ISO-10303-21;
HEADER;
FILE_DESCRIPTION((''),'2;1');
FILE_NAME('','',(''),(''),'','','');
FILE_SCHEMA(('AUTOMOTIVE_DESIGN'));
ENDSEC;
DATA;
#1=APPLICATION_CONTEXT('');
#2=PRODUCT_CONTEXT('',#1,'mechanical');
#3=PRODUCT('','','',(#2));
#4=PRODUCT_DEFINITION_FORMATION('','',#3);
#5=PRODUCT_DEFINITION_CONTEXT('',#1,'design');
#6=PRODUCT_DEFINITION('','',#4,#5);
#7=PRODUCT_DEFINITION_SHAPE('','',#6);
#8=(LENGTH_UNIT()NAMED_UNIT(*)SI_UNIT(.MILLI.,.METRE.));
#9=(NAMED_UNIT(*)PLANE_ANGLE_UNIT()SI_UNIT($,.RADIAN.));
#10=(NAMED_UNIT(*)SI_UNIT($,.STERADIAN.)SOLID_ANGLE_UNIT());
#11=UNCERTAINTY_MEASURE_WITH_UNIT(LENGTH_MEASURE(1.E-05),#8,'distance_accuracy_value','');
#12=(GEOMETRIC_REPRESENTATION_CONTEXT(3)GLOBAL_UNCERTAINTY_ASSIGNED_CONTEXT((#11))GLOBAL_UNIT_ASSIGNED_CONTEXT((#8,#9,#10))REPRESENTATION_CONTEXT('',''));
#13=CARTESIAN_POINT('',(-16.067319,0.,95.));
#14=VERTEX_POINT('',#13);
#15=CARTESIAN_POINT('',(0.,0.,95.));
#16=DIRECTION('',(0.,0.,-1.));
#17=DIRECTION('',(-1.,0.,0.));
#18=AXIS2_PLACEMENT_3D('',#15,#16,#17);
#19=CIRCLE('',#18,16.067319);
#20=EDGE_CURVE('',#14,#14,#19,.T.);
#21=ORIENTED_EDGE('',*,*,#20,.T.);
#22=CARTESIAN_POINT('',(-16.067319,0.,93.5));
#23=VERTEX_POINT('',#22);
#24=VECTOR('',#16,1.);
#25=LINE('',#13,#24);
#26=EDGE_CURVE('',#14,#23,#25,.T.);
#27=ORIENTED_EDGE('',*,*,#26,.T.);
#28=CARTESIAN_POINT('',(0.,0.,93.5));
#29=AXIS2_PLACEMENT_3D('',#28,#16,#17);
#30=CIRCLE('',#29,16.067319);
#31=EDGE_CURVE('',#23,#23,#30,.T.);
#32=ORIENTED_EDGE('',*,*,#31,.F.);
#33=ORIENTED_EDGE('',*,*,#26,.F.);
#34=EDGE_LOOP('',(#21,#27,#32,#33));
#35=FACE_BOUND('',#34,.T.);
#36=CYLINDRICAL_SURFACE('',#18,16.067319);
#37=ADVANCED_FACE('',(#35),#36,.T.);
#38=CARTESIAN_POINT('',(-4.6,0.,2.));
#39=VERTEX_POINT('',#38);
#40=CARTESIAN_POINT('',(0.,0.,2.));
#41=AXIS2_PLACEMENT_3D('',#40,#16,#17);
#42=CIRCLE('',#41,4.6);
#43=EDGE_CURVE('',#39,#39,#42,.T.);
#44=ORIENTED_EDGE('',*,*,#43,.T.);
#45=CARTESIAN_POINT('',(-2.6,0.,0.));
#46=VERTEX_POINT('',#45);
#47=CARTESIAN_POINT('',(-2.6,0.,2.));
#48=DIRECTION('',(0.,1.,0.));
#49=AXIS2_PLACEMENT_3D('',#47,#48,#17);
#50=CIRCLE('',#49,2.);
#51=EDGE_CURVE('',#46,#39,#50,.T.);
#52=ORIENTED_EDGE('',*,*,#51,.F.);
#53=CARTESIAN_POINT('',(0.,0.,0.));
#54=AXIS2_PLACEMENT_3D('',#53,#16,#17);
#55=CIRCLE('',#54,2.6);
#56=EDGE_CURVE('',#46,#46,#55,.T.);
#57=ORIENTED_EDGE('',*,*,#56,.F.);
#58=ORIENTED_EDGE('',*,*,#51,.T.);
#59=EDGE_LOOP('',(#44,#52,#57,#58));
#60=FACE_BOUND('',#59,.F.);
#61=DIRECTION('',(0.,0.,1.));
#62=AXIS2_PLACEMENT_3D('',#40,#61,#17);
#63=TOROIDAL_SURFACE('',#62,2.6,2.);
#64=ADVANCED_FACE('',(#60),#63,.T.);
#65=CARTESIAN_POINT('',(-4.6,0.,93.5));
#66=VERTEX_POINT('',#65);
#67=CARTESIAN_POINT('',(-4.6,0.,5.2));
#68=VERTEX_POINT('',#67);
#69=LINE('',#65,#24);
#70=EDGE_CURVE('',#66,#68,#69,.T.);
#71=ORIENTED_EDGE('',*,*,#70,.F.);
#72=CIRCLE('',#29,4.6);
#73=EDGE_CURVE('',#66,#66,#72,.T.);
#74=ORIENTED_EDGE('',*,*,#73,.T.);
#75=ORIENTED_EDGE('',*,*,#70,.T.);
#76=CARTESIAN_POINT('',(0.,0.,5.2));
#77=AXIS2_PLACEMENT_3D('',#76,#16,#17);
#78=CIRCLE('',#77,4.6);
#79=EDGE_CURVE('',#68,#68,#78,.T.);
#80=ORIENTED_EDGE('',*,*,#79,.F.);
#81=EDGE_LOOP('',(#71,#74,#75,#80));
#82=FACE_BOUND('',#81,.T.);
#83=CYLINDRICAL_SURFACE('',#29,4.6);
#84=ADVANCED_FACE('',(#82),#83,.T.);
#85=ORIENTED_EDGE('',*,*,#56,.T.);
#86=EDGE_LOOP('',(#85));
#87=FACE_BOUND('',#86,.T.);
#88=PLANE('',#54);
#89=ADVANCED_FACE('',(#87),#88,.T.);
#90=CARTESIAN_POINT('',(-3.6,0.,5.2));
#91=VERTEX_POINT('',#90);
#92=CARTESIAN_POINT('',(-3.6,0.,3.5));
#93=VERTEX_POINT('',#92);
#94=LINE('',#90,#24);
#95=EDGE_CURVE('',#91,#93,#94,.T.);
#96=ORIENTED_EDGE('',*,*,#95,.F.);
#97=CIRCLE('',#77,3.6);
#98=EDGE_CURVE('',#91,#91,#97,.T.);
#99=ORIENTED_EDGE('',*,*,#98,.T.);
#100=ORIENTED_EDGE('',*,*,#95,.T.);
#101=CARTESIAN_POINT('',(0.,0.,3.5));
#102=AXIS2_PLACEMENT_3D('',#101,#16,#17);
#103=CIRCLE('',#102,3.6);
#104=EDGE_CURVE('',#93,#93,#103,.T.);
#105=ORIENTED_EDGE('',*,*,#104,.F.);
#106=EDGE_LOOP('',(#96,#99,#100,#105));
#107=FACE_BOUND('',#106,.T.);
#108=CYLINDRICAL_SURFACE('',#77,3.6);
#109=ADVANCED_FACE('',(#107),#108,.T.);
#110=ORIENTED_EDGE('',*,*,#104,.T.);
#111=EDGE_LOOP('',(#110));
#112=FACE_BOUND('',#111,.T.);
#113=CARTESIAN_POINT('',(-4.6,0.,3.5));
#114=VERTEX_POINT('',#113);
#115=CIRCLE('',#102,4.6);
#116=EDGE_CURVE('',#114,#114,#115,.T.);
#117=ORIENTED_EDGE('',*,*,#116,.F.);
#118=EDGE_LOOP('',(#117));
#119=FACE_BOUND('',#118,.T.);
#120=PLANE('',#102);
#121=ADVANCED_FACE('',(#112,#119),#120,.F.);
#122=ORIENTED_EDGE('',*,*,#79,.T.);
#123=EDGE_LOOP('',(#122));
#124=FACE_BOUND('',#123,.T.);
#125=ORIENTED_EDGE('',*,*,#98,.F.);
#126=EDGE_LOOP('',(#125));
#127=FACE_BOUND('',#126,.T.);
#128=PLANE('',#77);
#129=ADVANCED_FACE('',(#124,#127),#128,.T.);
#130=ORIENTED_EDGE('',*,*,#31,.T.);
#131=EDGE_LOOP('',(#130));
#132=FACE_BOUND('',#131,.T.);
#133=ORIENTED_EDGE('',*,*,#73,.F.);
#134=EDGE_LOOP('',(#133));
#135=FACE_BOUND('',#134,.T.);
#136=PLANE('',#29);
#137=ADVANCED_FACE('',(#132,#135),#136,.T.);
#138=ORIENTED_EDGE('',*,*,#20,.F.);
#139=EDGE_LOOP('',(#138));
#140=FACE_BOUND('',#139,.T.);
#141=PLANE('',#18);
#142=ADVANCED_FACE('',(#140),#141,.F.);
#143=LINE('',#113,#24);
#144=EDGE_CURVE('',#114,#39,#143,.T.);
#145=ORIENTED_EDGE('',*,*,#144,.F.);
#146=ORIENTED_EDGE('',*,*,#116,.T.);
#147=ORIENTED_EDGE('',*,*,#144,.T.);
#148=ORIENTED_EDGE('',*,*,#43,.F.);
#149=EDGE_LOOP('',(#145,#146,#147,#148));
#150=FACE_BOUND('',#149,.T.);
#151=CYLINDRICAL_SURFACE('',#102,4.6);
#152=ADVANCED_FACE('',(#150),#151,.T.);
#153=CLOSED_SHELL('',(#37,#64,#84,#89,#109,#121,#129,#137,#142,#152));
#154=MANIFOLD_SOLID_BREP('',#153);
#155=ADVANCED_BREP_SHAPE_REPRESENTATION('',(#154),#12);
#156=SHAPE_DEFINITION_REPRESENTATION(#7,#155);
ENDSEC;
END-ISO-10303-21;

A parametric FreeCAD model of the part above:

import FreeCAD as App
import Part
import Sketcher


def edges_at(feature, points):
    """Names of the edges that pass closest to the given points."""
    edges = feature.Shape.Edges
    near = lambda p: min(range(len(edges)), key=lambda i: edges[i].distToShape(Part.Vertex(*p))[0])
    return sorted({f"Edge{near(p) + 1}" for p in points})

doc = App.newDocument("Part")
body = doc.addObject("PartDesign::Body", "Body")

sketch1 = body.newObject("Sketcher::SketchObject", "Sketch")
sketch1.AttachmentSupport = (doc.getObject("XZ_Plane"), [""])
sketch1.MapMode = "FlatFace"
sketch1.addGeometry([
    Part.LineSegment(App.Vector(-4.6, 0, 0), App.Vector(0, 0, 0)),
    Part.LineSegment(App.Vector(0, 0, 0), App.Vector(0, 95, 0)),
    Part.LineSegment(App.Vector(0, 95, 0), App.Vector(-16.1, 95, 0)),
    Part.LineSegment(App.Vector(-16.1, 95, 0), App.Vector(-16.1, 93.5, 0)),
    Part.LineSegment(App.Vector(-16.1, 93.5, 0), App.Vector(-4.6, 93.5, 0)),
    Part.LineSegment(App.Vector(-4.6, 93.5, 0), App.Vector(-4.6, 5.2, 0)),
    Part.LineSegment(App.Vector(-4.6, 5.2, 0), App.Vector(-3.6, 5.2, 0)),
    Part.LineSegment(App.Vector(-3.6, 5.2, 0), App.Vector(-3.6, 3.5, 0)),
    Part.LineSegment(App.Vector(-3.6, 3.5, 0), App.Vector(-4.6, 3.5, 0)),
    Part.LineSegment(App.Vector(-4.6, 3.5, 0), App.Vector(-4.6, 0, 0)),
], False)
sketch1.addConstraint([
    Sketcher.Constraint("Coincident", 0, 2, 1, 1),
    Sketcher.Constraint("Coincident", 1, 2, 2, 1),
    Sketcher.Constraint("Coincident", 2, 2, 3, 1),
    Sketcher.Constraint("Coincident", 3, 2, 4, 1),
    Sketcher.Constraint("Coincident", 4, 2, 5, 1),
    Sketcher.Constraint("Coincident", 5, 2, 6, 1),
    Sketcher.Constraint("Coincident", 6, 2, 7, 1),
    Sketcher.Constraint("Coincident", 7, 2, 8, 1),
    Sketcher.Constraint("Coincident", 8, 2, 9, 1),
    Sketcher.Constraint("Coincident", 9, 2, 0, 1),
    Sketcher.Constraint("Horizontal", 0),
    Sketcher.Constraint("Vertical", 1),
    Sketcher.Constraint("Horizontal", 2),
    Sketcher.Constraint("Vertical", 3),
    Sketcher.Constraint("Horizontal", 4),
    Sketcher.Constraint("Vertical", 5),
    Sketcher.Constraint("Horizontal", 6),
    Sketcher.Constraint("Vertical", 7),
    Sketcher.Constraint("Horizontal", 8),
    Sketcher.Constraint("Vertical", 9),
    Sketcher.Constraint("Coincident", 0, 2, -1, 1),
    Sketcher.Constraint("Vertical", 5, 2, 8, 2),
    Sketcher.Constraint("DistanceX", 6, 1, 6, 2, 1.0),
    Sketcher.Constraint("DistanceY", 1, 1, 1, 2, 95.0),
    Sketcher.Constraint("DistanceX", 0, 1, 0, 2, 4.6),
    Sketcher.Constraint("DistanceY", 3, 2, 3, 1, 1.5),
    Sketcher.Constraint("DistanceY", 5, 2, 5, 1, 88.3),
    Sketcher.Constraint("DistanceY", 7, 2, 7, 1, 1.7),
    Sketcher.Constraint("DistanceX", 2, 2, 2, 1, 16.067319),
])
revolution = body.newObject("PartDesign::Revolution", "Revolution")
revolution.Profile = sketch1
revolution.ReferenceAxis = (sketch1, ["V_Axis"])
revolution.Angle = 360
doc.recompute()

fillet = body.newObject("PartDesign::Fillet", "Fillet")
fillet.Base = (revolution, edges_at(revolution, [(4.6, 0, 0)]))
fillet.Radius = 2

doc.recompute()
